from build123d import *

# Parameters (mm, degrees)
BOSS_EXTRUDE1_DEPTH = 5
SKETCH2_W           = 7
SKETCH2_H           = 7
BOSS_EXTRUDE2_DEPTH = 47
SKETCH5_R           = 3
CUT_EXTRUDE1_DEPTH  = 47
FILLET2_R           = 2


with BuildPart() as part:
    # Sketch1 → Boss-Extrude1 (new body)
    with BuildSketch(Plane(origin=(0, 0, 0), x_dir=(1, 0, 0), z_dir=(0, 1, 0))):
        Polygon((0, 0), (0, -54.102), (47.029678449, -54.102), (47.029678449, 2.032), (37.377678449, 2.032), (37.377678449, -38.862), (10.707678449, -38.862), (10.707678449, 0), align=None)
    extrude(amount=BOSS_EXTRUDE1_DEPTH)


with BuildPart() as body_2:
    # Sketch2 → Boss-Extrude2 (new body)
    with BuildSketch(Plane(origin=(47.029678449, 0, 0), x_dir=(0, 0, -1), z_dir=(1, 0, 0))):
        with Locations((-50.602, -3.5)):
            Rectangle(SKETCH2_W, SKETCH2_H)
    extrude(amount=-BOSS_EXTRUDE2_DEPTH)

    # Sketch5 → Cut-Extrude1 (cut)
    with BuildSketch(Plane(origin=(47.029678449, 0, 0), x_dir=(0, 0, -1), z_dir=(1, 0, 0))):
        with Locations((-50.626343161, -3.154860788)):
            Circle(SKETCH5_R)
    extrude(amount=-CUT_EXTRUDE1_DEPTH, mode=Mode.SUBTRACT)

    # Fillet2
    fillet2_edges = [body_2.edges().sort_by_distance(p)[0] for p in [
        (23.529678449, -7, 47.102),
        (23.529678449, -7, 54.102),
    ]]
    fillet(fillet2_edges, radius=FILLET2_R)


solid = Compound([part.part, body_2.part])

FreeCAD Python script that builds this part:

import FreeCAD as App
import Part
import Sketcher
from FreeCAD import Vector
Q = App.Units.Quantity


def edges_at(feature, points):
    """Names of the edges that pass closest to the given points."""
    edges = feature.Shape.Edges
    near = lambda p: min(range(len(edges)), key=lambda i: edges[i].distToShape(Part.Vertex(*p))[0])
    return sorted({f"Edge{near(p) + 1}" for p in points})

doc = App.newDocument("Part")
body = doc.addObject("PartDesign::Body", "Body")

sketch1 = body.newObject("Sketcher::SketchObject", "Sketch")
sketch1.AttachmentSupport = (doc.getObject("XZ_Plane"), [""])
sketch1.MapMode = "FlatFace"
sketch1.addGeometry(Part.LineSegment(Vector(0, 0, 0), Vector(0, 54, 0)), False)
sketch1.addGeometry(Part.LineSegment(Vector(0, 54, 0), Vector(47, 54, 0)), False)
sketch1.addGeometry(Part.LineSegment(Vector(47, 54, 0), Vector(47, -2, 0)), False)
sketch1.addGeometry(Part.LineSegment(Vector(47, -2, 0), Vector(37, -2, 0)), False)
sketch1.addGeometry(Part.LineSegment(Vector(37, -2, 0), Vector(37, 39, 0)), False)
sketch1.addGeometry(Part.LineSegment(Vector(37, 39, 0), Vector(11, 39, 0)), False)
sketch1.addGeometry(Part.LineSegment(Vector(11, 39, 0), Vector(11, 0, 0)), False)
sketch1.addGeometry(Part.LineSegment(Vector(11, 0, 0), Vector(0, 0, 0)), False)
sketch1.addConstraint(Sketcher.Constraint("Coincident", 0, 2, 1, 1))
sketch1.addConstraint(Sketcher.Constraint("Coincident", 1, 2, 2, 1))
sketch1.addConstraint(Sketcher.Constraint("Coincident", 2, 2, 3, 1))
sketch1.addConstraint(Sketcher.Constraint("Coincident", 3, 2, 4, 1))
sketch1.addConstraint(Sketcher.Constraint("Coincident", 4, 2, 5, 1))
sketch1.addConstraint(Sketcher.Constraint("Coincident", 5, 2, 6, 1))
sketch1.addConstraint(Sketcher.Constraint("Coincident", 6, 2, 7, 1))
sketch1.addConstraint(Sketcher.Constraint("Coincident", 7, 2, 0, 1))
sketch1.addConstraint(Sketcher.Constraint("Vertical", 0))
sketch1.addConstraint(Sketcher.Constraint("Horizontal", 1))
sketch1.addConstraint(Sketcher.Constraint("Vertical", 2))
sketch1.addConstraint(Sketcher.Constraint("Horizontal", 3))
sketch1.addConstraint(Sketcher.Constraint("Vertical", 4))
sketch1.addConstraint(Sketcher.Constraint("Horizontal", 5))
sketch1.addConstraint(Sketcher.Constraint("Vertical", 6))
sketch1.addConstraint(Sketcher.Constraint("Horizontal", 7))
sketch1.addConstraint(Sketcher.Constraint("Coincident", 7, 2, -1, 1))
sketch1.addConstraint(Sketcher.Constraint("DistanceX", 3, 2, 3, 1, Q("0.38 in")))
sketch1.addConstraint(Sketcher.Constraint("DistanceX", 5, 2, 5, 1, Q("1.05 in")))
sketch1.addConstraint(Sketcher.Constraint("DistanceY", 0, 1, 0, 2, Q("2.13 in")))
sketch1.addConstraint(Sketcher.Constraint("DistanceY", 2, 2, 2, 1, Q("2.21 in")))
sketch1.addConstraint(Sketcher.Constraint("DistanceY", 4, 1, 4, 2, Q("1.61 in")))
sketch1.addConstraint(Sketcher.Constraint("DistanceX", 1, 1, 1, 2, 47.029678))
pad1 = body.newObject("PartDesign::Pad", "Pad")
pad1.Profile = sketch1
pad1.Length = 5
pad1.Reversed = True
body2 = doc.addObject("PartDesign::Body", "Body001")

sketch2 = body2.newObject("Sketcher::SketchObject", "Sketch001")
sketch2.AttachmentSupport = (doc.getObject("YZ_Plane001"), [""])
sketch2.MapMode = "FlatFace"
sketch2.AttachmentOffset = App.Placement(Vector(0, 0, 47.029678), App.Rotation())
sketch2.addGeometry(Part.LineSegment(Vector(0, 54, 0), Vector(-7, 54, 0)), False)
sketch2.addGeometry(Part.LineSegment(Vector(-7, 54, 0), Vector(-7, 47, 0)), False)
sketch2.addGeometry(Part.LineSegment(Vector(-7, 47, 0), Vector(0, 47, 0)), False)
sketch2.addGeometry(Part.LineSegment(Vector(0, 47, 0), Vector(0, 54, 0)), False)
sketch2.addConstraint(Sketcher.Constraint("Coincident", 0, 2, 1, 1))
sketch2.addConstraint(Sketcher.Constraint("Coincident", 1, 2, 2, 1))
sketch2.addConstraint(Sketcher.Constraint("Coincident", 2, 2, 3, 1))
sketch2.addConstraint(Sketcher.Constraint("Coincident", 3, 2, 0, 1))
sketch2.addConstraint(Sketcher.Constraint("Horizontal", 0))
sketch2.addConstraint(Sketcher.Constraint("Vertical", 1))
sketch2.addConstraint(Sketcher.Constraint("Horizontal", 2))
sketch2.addConstraint(Sketcher.Constraint("Vertical", 3))
sketch2.addConstraint(Sketcher.Constraint("PointOnObject", 2, 2, -2))
sketch2.addConstraint(Sketcher.Constraint("Equal", 2, 1))
sketch2.addConstraint(Sketcher.Constraint("DistanceY", -1, 1, 0, 2, Q("2.13 in")))
sketch2.addConstraint(Sketcher.Constraint("DistanceX", 0, 2, 0, 1, 7.0))
pad2 = body2.newObject("PartDesign::Pad", "Pad001")
pad2.Profile = sketch2
pad2.Length = 47
pad2.Reversed = True

sketch3 = body2.newObject("Sketcher::SketchObject", "Sketch002")
sketch3.AttachmentSupport = (doc.getObject("YZ_Plane001"), [""])
sketch3.MapMode = "FlatFace"
sketch3.AttachmentOffset = App.Placement(Vector(0, 0, 47.029678), App.Rotation())
sketch3.addGeometry(Part.Circle(Vector(-3.2, 50.6, 0), Vector(0, 0, 1), 3), False)
sketch3.addConstraint(Sketcher.Constraint("Diameter", 0, 6.0))
sketch3.addConstraint(Sketcher.Constraint("DistanceX", 0, 3, -1, 1, 3.154861))
sketch3.addConstraint(Sketcher.Constraint("DistanceY", -1, 1, 0, 3, 50.626343))
pocket1 = body2.newObject("PartDesign::Pocket", "Pocket")
pocket1.Profile = sketch3
pocket1.Length = 47
doc.recompute()

fillet = body2.newObject("PartDesign::Fillet", "Fillet")
fillet.Base = (pocket1, edges_at(pocket1, [(23.53, -7, 47.102), (23.53, -7, 54.102)]))
fillet.Radius = 2

doc.recompute()
